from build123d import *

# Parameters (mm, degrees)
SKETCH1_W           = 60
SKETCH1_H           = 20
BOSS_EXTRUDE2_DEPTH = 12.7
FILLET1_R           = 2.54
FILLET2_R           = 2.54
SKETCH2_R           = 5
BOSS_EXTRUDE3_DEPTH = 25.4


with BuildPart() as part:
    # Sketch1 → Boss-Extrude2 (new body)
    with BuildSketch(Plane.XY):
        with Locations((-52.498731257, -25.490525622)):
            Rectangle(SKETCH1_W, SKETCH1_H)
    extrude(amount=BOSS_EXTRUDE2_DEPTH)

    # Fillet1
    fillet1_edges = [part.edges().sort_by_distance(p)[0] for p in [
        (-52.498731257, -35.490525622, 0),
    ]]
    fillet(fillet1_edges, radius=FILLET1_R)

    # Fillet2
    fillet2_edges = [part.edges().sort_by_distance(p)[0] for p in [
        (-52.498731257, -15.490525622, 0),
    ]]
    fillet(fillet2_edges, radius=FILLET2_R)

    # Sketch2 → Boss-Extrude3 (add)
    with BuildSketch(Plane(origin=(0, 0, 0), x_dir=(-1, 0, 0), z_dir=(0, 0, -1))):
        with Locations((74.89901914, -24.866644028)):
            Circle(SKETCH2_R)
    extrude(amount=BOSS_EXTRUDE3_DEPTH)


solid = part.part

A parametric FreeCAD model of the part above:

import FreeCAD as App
import Part
import Sketcher
Q = App.Units.Quantity


def edges_at(feature, points):
    """Names of the edges that pass closest to the given points."""
    edges = feature.Shape.Edges
    near = lambda p: min(range(len(edges)), key=lambda i: edges[i].distToShape(Part.Vertex(*p))[0])
    return sorted({f"Edge{near(p) + 1}" for p in points})

doc = App.newDocument("Part")
body = doc.addObject("PartDesign::Body", "Body")

# Sketch on XY plane
sketch1 = body.newObject("Sketcher::SketchObject", "Sketch")
sketch1.AttachmentSupport = (doc.getObject("XY_Plane"), [""])
sketch1.MapMode = "FlatFace"
sketch1.addGeometry([
    Part.LineSegment(App.Vector(-82.498731, -15.490526, 0), App.Vector(-82.498731, -35.490526, 0)),
    Part.LineSegment(App.Vector(-82.498731, -35.490526, 0), App.Vector(-22.498731, -35.490526, 0)),
    Part.LineSegment(App.Vector(-22.498731, -35.490526, 0), App.Vector(-22.498731, -15.490526, 0)),
    Part.LineSegment(App.Vector(-22.498731, -15.490526, 0), App.Vector(-82.498731, -15.490526, 0)),
], False)
sketch1.addConstraint([
    Sketcher.Constraint("Coincident", 0, 2, 1, 1),
    Sketcher.Constraint("Coincident", 1, 2, 2, 1),
    Sketcher.Constraint("Coincident", 2, 2, 3, 1),
    Sketcher.Constraint("Coincident", 3, 2, 0, 1),
    Sketcher.Constraint("Vertical", 0),
    Sketcher.Constraint("Horizontal", 1),
    Sketcher.Constraint("Vertical", 2),
    Sketcher.Constraint("Horizontal", 3),
    Sketcher.Constraint("DistanceX", 1, 1, 1, 2, Q("60 mm")),
    Sketcher.Constraint("DistanceY", 0, 2, 0, 1, Q("20 mm")),
    Sketcher.Constraint("DistanceX", 0, 2, -1, 1, Q("82.498731 mm")),
    Sketcher.Constraint("DistanceY", 0, 2, -1, 1, Q("35.490526 mm")),
])
pad1 = body.newObject("PartDesign::Pad", "Pad")
pad1.Profile = sketch1
pad1.Length = 12.7
doc.recompute()

fillet = body.newObject("PartDesign::Fillet", "Fillet")
fillet.Base = (pad1, edges_at(pad1, [(-52.499, -35.491, 0)]))
fillet.Radius = 2.54
doc.recompute()

fillet2 = body.newObject("PartDesign::Fillet", "Fillet001")
fillet2.Base = (fillet, edges_at(fillet, [(-52.499, -15.491, 0)]))
fillet2.Radius = 2.54

# Sketch on XY plane
sketch2 = body.newObject("Sketcher::SketchObject", "Sketch001")
sketch2.AttachmentSupport = (doc.getObject("XY_Plane"), [""])
sketch2.MapMode = "FlatFace"
sketch2.addGeometry(Part.Circle(App.Vector(-74.899019, -24.866644, 0), App.Vector(0, 0, 1), 5), False)
sketch2.addConstraint([
    Sketcher.Constraint("Diameter", 0, Q("10 mm")),
    Sketcher.Constraint("DistanceX", 0, 3, -1, 1, Q("74.899019 mm")),
    Sketcher.Constraint("DistanceY", 0, 3, -1, 1, Q("24.866644 mm")),
])
pad2 = body.newObject("PartDesign::Pad", "Pad001")
pad2.Profile = sketch2
pad2.Length = 25.4
pad2.Reversed = True

doc.recompute()
